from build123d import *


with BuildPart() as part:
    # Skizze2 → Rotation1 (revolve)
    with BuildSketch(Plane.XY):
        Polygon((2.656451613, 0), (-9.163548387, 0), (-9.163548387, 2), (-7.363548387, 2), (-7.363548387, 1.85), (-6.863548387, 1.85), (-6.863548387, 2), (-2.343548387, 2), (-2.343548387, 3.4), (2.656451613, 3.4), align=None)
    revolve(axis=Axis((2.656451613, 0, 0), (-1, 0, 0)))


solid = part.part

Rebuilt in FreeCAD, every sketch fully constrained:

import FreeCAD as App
import Part
import Sketcher
from FreeCAD import Vector
Q = App.Units.Quantity

doc = App.newDocument("Part")
body = doc.addObject("PartDesign::Body", "Body")

sketch1 = body.newObject("Sketcher::SketchObject", "Sketch")
sketch1.AttachmentSupport = (doc.getObject("XY_Plane"), [""])
sketch1.MapMode = "FlatFace"
sketch1.addGeometry(Part.LineSegment(Vector(-9.16, 0, 0), Vector(2.66, 0, 0)), False)
sketch1.addGeometry(Part.LineSegment(Vector(2.66, 0, 0), Vector(2.66, 3.4, 0)), False)
sketch1.addGeometry(Part.LineSegment(Vector(2.66, 3.4, 0), Vector(-2.34, 3.4, 0)), False)
sketch1.addGeometry(Part.LineSegment(Vector(-2.34, 3.4, 0), Vector(-2.34, 2, 0)), False)
sketch1.addGeometry(Part.LineSegment(Vector(-2.34, 2, 0), Vector(-6.86, 2, 0)), False)
sketch1.addGeometry(Part.LineSegment(Vector(-6.86, 2, 0), Vector(-6.86, 1.85, 0)), False)
sketch1.addGeometry(Part.LineSegment(Vector(-6.86, 1.85, 0), Vector(-7.36, 1.85, 0)), False)
sketch1.addGeometry(Part.LineSegment(Vector(-7.36, 1.85, 0), Vector(-7.36, 2, 0)), False)
sketch1.addGeometry(Part.LineSegment(Vector(-7.36, 2, 0), Vector(-9.16, 2, 0)), False)
sketch1.addGeometry(Part.LineSegment(Vector(-9.16, 2, 0), Vector(-9.16, 0, 0)), False)
sketch1.addConstraint(Sketcher.Constraint("Coincident", 0, 2, 1, 1))
sketch1.addConstraint(Sketcher.Constraint("Coincident", 1, 2, 2, 1))
sketch1.addConstraint(Sketcher.Constraint("Coincident", 2, 2, 3, 1))
sketch1.addConstraint(Sketcher.Constraint("Coincident", 3, 2, 4, 1))
sketch1.addConstraint(Sketcher.Constraint("Coincident", 4, 2, 5, 1))
sketch1.addConstraint(Sketcher.Constraint("Coincident", 5, 2, 6, 1))
sketch1.addConstraint(Sketcher.Constraint("Coincident", 6, 2, 7, 1))
sketch1.addConstraint(Sketcher.Constraint("Coincident", 7, 2, 8, 1))
sketch1.addConstraint(Sketcher.Constraint("Coincident", 8, 2, 9, 1))
sketch1.addConstraint(Sketcher.Constraint("Coincident", 9, 2, 0, 1))
sketch1.addConstraint(Sketcher.Constraint("Horizontal", 0))
sketch1.addConstraint(Sketcher.Constraint("Vertical", 1))
sketch1.addConstraint(Sketcher.Constraint("Horizontal", 2))
sketch1.addConstraint(Sketcher.Constraint("Vertical", 3))
sketch1.addConstraint(Sketcher.Constraint("Horizontal", 4))
sketch1.addConstraint(Sketcher.Constraint("Vertical", 5))
sketch1.addConstraint(Sketcher.Constraint("Horizontal", 6))
sketch1.addConstraint(Sketcher.Constraint("Vertical", 7))
sketch1.addConstraint(Sketcher.Constraint("Horizontal", 8))
sketch1.addConstraint(Sketcher.Constraint("Vertical", 9))
sketch1.addConstraint(Sketcher.Constraint("PointOnObject", 0, 2, -1))
sketch1.addConstraint(Sketcher.Constraint("Horizontal", 4, 2, 7, 2))
sketch1.addConstraint(Sketcher.Constraint("DistanceX", 2, 2, 2, 1, Q("5 mm")))
sketch1.addConstraint(Sketcher.Constraint("DistanceY", 9, 2, 9, 1, Q("2 mm")))
sketch1.addConstraint(Sketcher.Constraint("DistanceX", 6, 2, 6, 1, Q("0.5 mm")))
sketch1.addConstraint(Sketcher.Constraint("DistanceX", 8, 2, 8, 1, Q("1.8 mm")))
sketch1.addConstraint(Sketcher.Constraint("DistanceY", 1, 1, 1, 2, Q("3.4 mm")))
sketch1.addConstraint(Sketcher.Constraint("DistanceX", 0, 1, 0, 2, Q("11.82 mm")))
sketch1.addConstraint(Sketcher.Constraint("DistanceY", 5, 2, 5, 1, Q("0.15 mm")))
sketch1.addConstraint(Sketcher.Constraint("DistanceX", -1, 1, 0, 2, Q("2.656452 mm")))
revolution = body.newObject("PartDesign::Revolution", "Revolution")
revolution.Profile = sketch1
revolution.ReferenceAxis = (sketch1, ["H_Axis"])
revolution.Angle = 360

doc.recompute()
